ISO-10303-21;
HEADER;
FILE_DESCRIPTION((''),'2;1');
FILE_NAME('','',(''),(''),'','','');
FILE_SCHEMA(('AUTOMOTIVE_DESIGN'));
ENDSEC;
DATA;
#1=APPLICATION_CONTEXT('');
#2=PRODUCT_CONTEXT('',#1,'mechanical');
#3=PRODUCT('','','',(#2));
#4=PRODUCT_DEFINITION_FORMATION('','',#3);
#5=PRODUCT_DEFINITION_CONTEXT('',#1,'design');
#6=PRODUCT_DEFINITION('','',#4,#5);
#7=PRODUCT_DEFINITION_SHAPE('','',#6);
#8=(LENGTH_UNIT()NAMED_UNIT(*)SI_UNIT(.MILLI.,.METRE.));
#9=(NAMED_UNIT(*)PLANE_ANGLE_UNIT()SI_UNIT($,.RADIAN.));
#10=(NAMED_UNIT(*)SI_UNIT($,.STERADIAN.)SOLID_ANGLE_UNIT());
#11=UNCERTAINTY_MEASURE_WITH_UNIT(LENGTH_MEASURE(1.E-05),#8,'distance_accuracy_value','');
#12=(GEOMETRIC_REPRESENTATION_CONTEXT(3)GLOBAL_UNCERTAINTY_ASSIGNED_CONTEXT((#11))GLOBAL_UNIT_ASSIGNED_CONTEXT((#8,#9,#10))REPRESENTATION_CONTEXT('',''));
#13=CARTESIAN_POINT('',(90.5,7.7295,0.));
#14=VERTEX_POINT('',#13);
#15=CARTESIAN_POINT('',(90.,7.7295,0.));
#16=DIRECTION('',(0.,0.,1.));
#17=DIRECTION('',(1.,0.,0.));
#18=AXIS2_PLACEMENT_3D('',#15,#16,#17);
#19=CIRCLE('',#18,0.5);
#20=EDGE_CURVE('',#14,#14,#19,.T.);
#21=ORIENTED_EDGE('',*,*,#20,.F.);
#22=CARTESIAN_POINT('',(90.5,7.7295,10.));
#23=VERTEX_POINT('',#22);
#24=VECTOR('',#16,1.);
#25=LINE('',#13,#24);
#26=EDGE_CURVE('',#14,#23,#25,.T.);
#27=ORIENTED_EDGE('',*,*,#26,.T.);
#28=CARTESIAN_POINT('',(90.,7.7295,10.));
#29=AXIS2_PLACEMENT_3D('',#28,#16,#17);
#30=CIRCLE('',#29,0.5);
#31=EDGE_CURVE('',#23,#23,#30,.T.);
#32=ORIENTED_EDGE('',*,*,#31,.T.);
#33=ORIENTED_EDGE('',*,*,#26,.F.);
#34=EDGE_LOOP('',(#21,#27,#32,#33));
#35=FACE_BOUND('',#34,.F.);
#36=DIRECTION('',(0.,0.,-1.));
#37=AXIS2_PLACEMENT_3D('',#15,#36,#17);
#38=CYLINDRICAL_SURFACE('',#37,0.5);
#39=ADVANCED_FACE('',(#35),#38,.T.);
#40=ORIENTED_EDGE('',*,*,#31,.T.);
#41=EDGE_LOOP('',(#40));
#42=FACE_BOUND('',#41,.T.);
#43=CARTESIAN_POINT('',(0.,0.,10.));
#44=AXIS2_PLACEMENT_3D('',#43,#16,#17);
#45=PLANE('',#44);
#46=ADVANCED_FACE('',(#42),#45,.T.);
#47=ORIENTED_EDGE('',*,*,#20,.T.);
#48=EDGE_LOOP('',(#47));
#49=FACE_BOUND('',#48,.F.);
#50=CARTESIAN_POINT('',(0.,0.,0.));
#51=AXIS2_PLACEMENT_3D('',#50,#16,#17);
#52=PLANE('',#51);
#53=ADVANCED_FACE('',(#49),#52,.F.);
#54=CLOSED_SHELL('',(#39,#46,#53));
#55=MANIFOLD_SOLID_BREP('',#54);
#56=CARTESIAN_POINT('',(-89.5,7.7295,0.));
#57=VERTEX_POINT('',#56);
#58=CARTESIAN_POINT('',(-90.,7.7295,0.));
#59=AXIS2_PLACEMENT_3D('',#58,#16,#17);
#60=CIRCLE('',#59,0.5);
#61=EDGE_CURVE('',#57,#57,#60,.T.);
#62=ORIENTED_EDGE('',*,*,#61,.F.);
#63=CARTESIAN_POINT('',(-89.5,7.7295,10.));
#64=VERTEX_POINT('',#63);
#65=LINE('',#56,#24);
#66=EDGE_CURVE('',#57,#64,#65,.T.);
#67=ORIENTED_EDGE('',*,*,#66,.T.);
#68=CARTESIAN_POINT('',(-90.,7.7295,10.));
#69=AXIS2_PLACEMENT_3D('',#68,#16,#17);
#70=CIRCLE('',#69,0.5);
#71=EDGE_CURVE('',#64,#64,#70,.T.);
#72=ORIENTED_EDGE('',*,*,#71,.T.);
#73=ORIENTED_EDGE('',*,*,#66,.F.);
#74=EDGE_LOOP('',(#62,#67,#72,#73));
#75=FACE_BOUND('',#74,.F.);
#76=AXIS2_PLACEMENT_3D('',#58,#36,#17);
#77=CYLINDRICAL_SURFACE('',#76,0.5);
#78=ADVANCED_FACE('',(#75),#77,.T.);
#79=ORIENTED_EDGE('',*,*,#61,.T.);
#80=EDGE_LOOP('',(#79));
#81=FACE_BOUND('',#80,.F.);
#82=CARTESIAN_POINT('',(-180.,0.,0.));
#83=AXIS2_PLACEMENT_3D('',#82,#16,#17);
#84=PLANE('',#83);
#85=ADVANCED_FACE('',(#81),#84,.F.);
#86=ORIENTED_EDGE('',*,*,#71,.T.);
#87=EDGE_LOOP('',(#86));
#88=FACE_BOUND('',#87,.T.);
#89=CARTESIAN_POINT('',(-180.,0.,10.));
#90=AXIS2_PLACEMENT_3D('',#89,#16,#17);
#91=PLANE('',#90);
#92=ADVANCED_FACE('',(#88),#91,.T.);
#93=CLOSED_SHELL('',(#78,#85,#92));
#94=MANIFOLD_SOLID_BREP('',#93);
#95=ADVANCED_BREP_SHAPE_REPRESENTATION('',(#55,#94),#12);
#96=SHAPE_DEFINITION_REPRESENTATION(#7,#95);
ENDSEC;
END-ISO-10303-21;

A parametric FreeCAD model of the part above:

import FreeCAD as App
import Part
import Sketcher
Q = App.Units.Quantity

doc = App.newDocument("Part")
body = doc.addObject("PartDesign::Body", "Body")
body.AllowCompound = True

# Sketch on XY plane
sketch1 = doc.addObject("Sketcher::SketchObject", "Sketch")
body.addObject(sketch1)
sketch1.AttachmentSupport = (doc.XY_Plane, [""])
sketch1.MapMode = "FlatFace"
sketch1.addGeometry(Part.Circle(App.Vector(90, 7.7, 0), App.Vector(0, 0, 1), 0.5), False)
sketch1.addConstraint([
    Sketcher.Constraint("Diameter", 0, Q("1 mm")),
    Sketcher.Constraint("DistanceX", -1, 1, 0, 3, Q("90 mm")),
    Sketcher.Constraint("DistanceY", -1, 1, 0, 3, Q("7.7295 mm")),
])
pad1 = doc.addObject("PartDesign::Pad", "Pad")
body.addObject(pad1)
pad1.Profile = sketch1
pad1.Length = 10
doc.recompute()

linearpattern = doc.addObject("PartDesign::LinearPattern", "LinearPattern")
body.addObject(linearpattern)
linearpattern.Originals = [pad1]
linearpattern.Direction = (doc.X_Axis, [""])
linearpattern.Mode = "offset"
linearpattern.Offset = 180
linearpattern.Occurrences = 2
linearpattern.Reversed = True
body.Tip = linearpattern

doc.recompute()
